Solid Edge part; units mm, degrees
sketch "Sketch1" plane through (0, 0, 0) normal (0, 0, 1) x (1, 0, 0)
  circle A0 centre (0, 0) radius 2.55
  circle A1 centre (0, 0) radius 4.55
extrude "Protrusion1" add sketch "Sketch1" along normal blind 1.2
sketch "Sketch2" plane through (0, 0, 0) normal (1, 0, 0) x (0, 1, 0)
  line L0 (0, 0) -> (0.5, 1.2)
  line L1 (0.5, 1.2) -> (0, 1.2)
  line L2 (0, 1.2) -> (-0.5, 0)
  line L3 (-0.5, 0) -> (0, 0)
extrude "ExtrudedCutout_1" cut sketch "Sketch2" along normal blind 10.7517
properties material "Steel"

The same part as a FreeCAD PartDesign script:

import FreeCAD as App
import Part
import Sketcher

V = App.Vector
Q = App.Units.Quantity


def add_polygon(sketch, points):
    """Adds a closed chain of lines whose ends are joined by coincident constraints."""
    first, n = sketch.GeometryCount, len(points)
    for a, b in zip(points, points[1:] + points[:1]):
        sketch.addGeometry(Part.LineSegment(App.Vector(*a, 0), App.Vector(*b, 0)), False)
    for i in range(n):
        sketch.addConstraint(Sketcher.Constraint("Coincident", first + i, 2, first + (i + 1) % n, 1))

doc = App.newDocument("Part")
params = doc.addObject("Spreadsheet::Sheet", "Params")
for row, (alias, value) in enumerate([
    ("sketch1_diameter", "9.1 mm"),
    ("sketch1_diameter2", "5.1 mm"),
    ("pad1_length", "1.2 mm"),
    ("sketch2_width", "0.5 mm"),
    ("sketch2_length", "1.3 mm"),
    ("pocket1_length", "10.7517 mm"),
], start=1):
    params.set(f"A{row}", alias)
    params.set(f"B{row}", "=" + value)
    params.setAlias(f"B{row}", alias)

body = doc.addObject("PartDesign::Body", "Body")

sketch1 = doc.addObject("Sketcher::SketchObject", "Sketch")
body.addObject(sketch1)
sketch1.AttachmentSupport = (doc.XY_Plane, [""])
sketch1.MapMode = "FlatFace"
sketch1.addGeometry(Part.Circle(V(0, 0, 0), V(0, 0, 1), 4.55), False)
sketch1.addGeometry(Part.Circle(V(0, 0, 0), V(0, 0, 1), 2.55), False)
sketch1.addConstraint(Sketcher.Constraint("Coincident", 0, 3, -1, 1))
sketch1.addConstraint(Sketcher.Constraint("Coincident", 1, 3, -1, 1))
sketch1.addConstraint(Sketcher.Constraint("Diameter", 0, Q("9.1 mm")))
sketch1.addConstraint(Sketcher.Constraint("Diameter", 1, Q("5.1 mm")))
sketch1.setExpression("Constraints[2]", "Params.sketch1_diameter")
sketch1.setExpression("Constraints[3]", "Params.sketch1_diameter2")
pad1 = doc.addObject("PartDesign::Pad", "Pad")
body.addObject(pad1)
pad1.Profile = sketch1
pad1.setExpression("Length", "Params.pad1_length")

sketch2 = doc.addObject("Sketcher::SketchObject", "Sketch001")
body.addObject(sketch2)
sketch2.AttachmentSupport = (doc.YZ_Plane, [""])
sketch2.MapMode = "FlatFace"
add_polygon(sketch2, [(-0.5, 0), (0, 0), (0.5, 1.2), (0, 1.2)])
sketch2.addConstraint(Sketcher.Constraint("Horizontal", 0))
sketch2.addConstraint(Sketcher.Constraint("Horizontal", 2))
sketch2.addConstraint(Sketcher.Constraint("Coincident", 0, 2, -1, 1))
sketch2.addConstraint(Sketcher.Constraint("PointOnObject", 2, 2, -2))
sketch2.addConstraint(Sketcher.Constraint("Parallel", 1, 3))
sketch2.addConstraint(Sketcher.Constraint("DistanceX", 0, 1, 0, 2, Q("0.5 mm")))
sketch2.addConstraint(Sketcher.Constraint("Distance", 1, Q("1.3 mm")))
sketch2.setExpression("Constraints[9]", "Params.sketch2_width")
sketch2.setExpression("Constraints[10]", "Params.sketch2_length")
pocket1 = doc.addObject("PartDesign::Pocket", "Pocket")
body.addObject(pocket1)
pocket1.Profile = sketch2
pocket1.setExpression("Length", "Params.pocket1_length")
pocket1.Reversed = True

doc.recompute()
